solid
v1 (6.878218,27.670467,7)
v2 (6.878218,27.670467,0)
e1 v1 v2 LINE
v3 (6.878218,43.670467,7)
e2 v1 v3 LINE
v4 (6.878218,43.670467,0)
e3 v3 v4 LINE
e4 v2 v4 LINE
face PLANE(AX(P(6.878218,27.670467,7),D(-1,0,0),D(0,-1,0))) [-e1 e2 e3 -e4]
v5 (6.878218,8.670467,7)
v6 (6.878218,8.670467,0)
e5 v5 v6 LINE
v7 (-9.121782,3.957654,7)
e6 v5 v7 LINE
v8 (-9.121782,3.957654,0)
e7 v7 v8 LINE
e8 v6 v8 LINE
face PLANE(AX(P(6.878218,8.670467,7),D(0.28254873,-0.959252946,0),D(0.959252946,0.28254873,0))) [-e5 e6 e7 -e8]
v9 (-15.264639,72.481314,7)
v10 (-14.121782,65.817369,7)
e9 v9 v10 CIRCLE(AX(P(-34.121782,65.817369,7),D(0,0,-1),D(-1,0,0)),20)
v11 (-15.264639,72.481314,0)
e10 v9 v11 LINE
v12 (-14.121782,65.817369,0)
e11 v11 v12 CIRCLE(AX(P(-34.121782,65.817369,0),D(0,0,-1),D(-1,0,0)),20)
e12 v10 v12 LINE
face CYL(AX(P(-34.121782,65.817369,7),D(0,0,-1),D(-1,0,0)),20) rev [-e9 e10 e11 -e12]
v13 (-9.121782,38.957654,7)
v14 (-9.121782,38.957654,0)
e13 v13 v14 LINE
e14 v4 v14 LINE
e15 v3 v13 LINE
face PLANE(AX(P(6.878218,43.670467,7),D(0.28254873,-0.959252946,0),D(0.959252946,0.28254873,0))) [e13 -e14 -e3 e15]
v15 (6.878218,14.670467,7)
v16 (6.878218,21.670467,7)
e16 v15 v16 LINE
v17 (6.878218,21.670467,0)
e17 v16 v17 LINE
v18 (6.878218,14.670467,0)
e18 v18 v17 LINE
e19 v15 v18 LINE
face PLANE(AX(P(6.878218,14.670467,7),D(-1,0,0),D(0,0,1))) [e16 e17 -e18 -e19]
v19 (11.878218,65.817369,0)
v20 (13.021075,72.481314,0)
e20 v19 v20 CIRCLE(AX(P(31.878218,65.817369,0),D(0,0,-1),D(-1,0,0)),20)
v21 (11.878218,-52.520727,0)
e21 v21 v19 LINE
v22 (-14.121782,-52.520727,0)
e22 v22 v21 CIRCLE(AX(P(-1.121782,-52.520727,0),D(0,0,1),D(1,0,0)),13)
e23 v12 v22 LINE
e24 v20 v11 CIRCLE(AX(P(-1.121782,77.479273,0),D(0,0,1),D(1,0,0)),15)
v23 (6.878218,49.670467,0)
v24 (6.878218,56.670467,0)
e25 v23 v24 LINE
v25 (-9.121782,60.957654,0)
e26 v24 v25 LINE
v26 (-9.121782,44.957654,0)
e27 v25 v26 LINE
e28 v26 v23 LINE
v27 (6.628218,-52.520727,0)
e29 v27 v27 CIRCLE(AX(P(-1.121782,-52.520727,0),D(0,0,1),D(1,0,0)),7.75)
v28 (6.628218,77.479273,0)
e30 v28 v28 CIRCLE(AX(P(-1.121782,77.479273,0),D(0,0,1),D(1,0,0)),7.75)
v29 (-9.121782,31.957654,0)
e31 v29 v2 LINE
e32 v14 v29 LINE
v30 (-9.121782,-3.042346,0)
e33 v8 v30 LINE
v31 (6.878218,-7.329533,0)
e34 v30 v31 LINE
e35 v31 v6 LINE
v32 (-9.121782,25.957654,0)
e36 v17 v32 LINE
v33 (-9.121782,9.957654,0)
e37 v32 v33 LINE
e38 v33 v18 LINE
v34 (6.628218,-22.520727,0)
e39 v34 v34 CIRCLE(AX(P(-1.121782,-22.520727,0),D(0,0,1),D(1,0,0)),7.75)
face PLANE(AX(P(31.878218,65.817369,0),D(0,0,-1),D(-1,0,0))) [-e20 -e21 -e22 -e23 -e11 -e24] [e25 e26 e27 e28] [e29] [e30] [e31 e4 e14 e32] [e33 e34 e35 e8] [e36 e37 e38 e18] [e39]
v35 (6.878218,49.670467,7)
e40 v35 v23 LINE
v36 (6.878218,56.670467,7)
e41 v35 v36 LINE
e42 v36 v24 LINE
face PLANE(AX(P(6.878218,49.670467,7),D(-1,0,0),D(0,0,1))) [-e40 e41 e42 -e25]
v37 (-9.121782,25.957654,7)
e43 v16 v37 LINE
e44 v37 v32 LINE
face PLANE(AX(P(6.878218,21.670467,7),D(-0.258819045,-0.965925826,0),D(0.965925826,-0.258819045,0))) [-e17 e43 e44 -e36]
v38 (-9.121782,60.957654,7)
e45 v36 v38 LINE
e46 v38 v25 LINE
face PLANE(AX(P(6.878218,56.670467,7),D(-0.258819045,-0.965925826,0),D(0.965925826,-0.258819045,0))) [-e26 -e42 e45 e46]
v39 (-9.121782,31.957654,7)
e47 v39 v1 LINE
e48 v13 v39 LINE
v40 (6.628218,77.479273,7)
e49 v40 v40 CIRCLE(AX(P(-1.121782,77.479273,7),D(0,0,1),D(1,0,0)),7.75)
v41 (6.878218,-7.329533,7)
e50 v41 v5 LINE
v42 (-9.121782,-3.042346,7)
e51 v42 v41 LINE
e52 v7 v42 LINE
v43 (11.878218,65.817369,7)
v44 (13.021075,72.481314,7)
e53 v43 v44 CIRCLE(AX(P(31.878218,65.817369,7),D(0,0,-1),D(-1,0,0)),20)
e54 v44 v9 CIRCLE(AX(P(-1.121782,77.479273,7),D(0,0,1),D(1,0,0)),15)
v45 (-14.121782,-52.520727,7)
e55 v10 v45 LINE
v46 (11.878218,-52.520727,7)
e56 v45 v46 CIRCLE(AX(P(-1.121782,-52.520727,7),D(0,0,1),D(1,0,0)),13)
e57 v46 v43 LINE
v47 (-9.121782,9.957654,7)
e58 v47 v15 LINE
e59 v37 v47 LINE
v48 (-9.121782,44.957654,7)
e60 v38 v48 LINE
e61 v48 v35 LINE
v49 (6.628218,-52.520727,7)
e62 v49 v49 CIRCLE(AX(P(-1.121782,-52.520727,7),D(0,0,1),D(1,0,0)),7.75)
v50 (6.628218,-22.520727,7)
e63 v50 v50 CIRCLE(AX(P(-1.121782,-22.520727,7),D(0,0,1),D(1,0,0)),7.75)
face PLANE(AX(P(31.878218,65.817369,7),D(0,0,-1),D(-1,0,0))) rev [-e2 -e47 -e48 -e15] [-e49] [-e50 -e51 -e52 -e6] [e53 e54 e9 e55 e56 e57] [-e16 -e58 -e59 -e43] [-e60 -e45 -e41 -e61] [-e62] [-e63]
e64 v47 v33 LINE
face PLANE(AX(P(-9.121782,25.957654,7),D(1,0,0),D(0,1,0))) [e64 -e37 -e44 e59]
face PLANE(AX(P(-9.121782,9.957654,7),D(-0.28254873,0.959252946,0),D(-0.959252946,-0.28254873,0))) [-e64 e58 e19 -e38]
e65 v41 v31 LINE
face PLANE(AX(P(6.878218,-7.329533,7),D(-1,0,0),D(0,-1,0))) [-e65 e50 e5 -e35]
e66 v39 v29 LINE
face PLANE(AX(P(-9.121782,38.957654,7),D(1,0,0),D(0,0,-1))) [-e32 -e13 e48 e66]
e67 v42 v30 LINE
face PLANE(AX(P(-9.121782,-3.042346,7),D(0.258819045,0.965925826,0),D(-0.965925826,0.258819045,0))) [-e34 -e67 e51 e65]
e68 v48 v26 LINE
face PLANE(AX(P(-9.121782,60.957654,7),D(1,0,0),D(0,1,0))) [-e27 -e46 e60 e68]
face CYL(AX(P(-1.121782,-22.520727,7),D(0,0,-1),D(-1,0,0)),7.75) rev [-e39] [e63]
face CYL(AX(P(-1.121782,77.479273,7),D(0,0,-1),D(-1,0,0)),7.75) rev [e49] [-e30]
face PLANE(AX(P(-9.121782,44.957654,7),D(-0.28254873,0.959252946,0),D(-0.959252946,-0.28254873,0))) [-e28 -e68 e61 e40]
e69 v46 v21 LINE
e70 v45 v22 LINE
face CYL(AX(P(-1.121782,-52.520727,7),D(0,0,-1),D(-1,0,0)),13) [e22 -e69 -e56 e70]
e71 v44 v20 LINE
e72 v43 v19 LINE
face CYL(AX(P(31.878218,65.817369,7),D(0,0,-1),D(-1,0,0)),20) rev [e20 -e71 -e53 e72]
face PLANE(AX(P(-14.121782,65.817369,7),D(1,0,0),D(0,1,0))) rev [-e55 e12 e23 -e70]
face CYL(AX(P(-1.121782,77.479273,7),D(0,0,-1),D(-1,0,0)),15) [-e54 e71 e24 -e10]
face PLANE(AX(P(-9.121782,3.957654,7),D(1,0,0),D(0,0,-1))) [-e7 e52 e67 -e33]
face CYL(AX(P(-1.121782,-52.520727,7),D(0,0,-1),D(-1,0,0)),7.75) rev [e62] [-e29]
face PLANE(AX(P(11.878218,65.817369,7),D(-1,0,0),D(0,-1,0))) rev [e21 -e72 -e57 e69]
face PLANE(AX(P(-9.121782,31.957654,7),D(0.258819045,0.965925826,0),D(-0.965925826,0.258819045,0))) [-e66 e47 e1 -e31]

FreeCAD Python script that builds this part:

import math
import FreeCAD as App
import Part
import Sketcher
Q = App.Units.Quantity


def add_polygon(sketch, points):
    """Adds a closed chain of lines whose ends are joined by coincident constraints."""
    first, n = sketch.GeometryCount, len(points)
    for a, b in zip(points, points[1:] + points[:1]):
        sketch.addGeometry(Part.LineSegment(App.Vector(*a, 0), App.Vector(*b, 0)), False)
    for i in range(n):
        sketch.addConstraint(Sketcher.Constraint("Coincident", first + i, 2, first + (i + 1) % n, 1))

doc = App.newDocument("Part")
body = doc.addObject("PartDesign::Body", "Body")

# Sketch on XY plane
sketch1 = body.newObject("Sketcher::SketchObject", "Sketch")
sketch1.AttachmentSupport = (doc.getObject("XY_Plane"), [""])
sketch1.MapMode = "FlatFace"
sketch1.addGeometry(Part.LineSegment(App.Vector(-14, 66, 0), App.Vector(-14, -53, 0)), False)  # 0
sketch1.addGeometry(Part.ArcOfCircle(Part.Circle(App.Vector(-1, -53, 0), App.Vector(0, 0, 1), 13), math.radians(180), math.radians(360)), False)  # 1
sketch1.addGeometry(Part.LineSegment(App.Vector(12, -53, 0), App.Vector(12, 66, 0)), False)  # 2
sketch1.addGeometry(Part.ArcOfCircle(Part.Circle(App.Vector(32, 66, 0), App.Vector(0, 0, 1), 20), math.radians(160.54), math.radians(180)), False)  # 3
sketch1.addGeometry(Part.ArcOfCircle(Part.Circle(App.Vector(-1, 77, 0), App.Vector(0, 0, 1), 15), math.radians(-19), math.radians(199)), False)  # 4
sketch1.addGeometry(Part.ArcOfCircle(Part.Circle(App.Vector(-34, 66, 0), App.Vector(0, 0, 1), 20), math.radians(0), math.radians(19.46)), False)  # 5
sketch1.addGeometry(Part.Circle(App.Vector(-1, -53, 0), App.Vector(0, 0, 1), 8), False)  # 6
sketch1.addGeometry(Part.Circle(App.Vector(-1, -23, 0), App.Vector(0, 0, 1), 8), False)  # 7
add_polygon(sketch1, [(-9, -3), (-9, 4), (7, 9), (7, -7)])  # lines 8-11
add_polygon(sketch1, [(7, 15), (-9, 10), (-9, 26), (7, 22)])  # lines 12-15
add_polygon(sketch1, [(7, 28), (-9, 32), (-9, 39), (7, 44)])  # lines 16-19
add_polygon(sketch1, [(-9, 61), (7, 57), (7, 50), (-9, 45)])  # lines 20-23
sketch1.addGeometry(Part.Circle(App.Vector(-1, 77, 0), App.Vector(0, 0, 1), 8), False)  # 24
sketch1.addConstraint(Sketcher.Constraint("Tangent", 0, 2, 1, 1))
sketch1.addConstraint(Sketcher.Constraint("Tangent", 1, 2, 2, 1))
sketch1.addConstraint(Sketcher.Constraint("Tangent", 2, 2, 3, 2))
sketch1.addConstraint(Sketcher.Constraint("Tangent", 3, 1, 4, 1))
sketch1.addConstraint(Sketcher.Constraint("Tangent", 4, 2, 5, 2))
sketch1.addConstraint(Sketcher.Constraint("Tangent", 5, 1, 0, 1))
sketch1.addConstraint(Sketcher.Constraint("Vertical", 0))
sketch1.addConstraint(Sketcher.Constraint("Vertical", 2))
sketch1.addConstraint(Sketcher.Constraint("Vertical", 8))
sketch1.addConstraint(Sketcher.Constraint("Vertical", 10))
sketch1.addConstraint(Sketcher.Constraint("Vertical", 13))
sketch1.addConstraint(Sketcher.Constraint("Vertical", 15))
sketch1.addConstraint(Sketcher.Constraint("Vertical", 17))
sketch1.addConstraint(Sketcher.Constraint("Vertical", 19))
sketch1.addConstraint(Sketcher.Constraint("Vertical", 21))
sketch1.addConstraint(Sketcher.Constraint("Vertical", 23))
sketch1.addConstraint(Sketcher.Constraint("Coincident", 6, 3, 1, 3))
sketch1.addConstraint(Sketcher.Constraint("Coincident", 24, 3, 4, 3))
sketch1.addConstraint(Sketcher.Constraint("Equal", 3, 5))
sketch1.addConstraint(Sketcher.Constraint("Equal", 6, 7))
sketch1.addConstraint(Sketcher.Constraint("Equal", 7, 24))
sketch1.addConstraint(Sketcher.Constraint("Parallel", 9, 12))
sketch1.addConstraint(Sketcher.Constraint("Parallel", 11, 14))
sketch1.addConstraint(Sketcher.Constraint("Parallel", 14, 16))
sketch1.addConstraint(Sketcher.Constraint("Parallel", 12, 18))
sketch1.addConstraint(Sketcher.Constraint("Parallel", 16, 20))
sketch1.addConstraint(Sketcher.Constraint("Parallel", 18, 22))
sketch1.addConstraint(Sketcher.Constraint("Horizontal", 3, 3, 5, 3))
sketch1.addConstraint(Sketcher.Constraint("Vertical", 6, 3, 7, 3))
sketch1.addConstraint(Sketcher.Constraint("Vertical", 11, 2, 12, 2))
sketch1.addConstraint(Sketcher.Constraint("Vertical", 10, 2, 14, 2))
sketch1.addConstraint(Sketcher.Constraint("Vertical", 13, 2, 16, 2))
sketch1.addConstraint(Sketcher.Constraint("Vertical", 15, 2, 18, 2))
sketch1.addConstraint(Sketcher.Constraint("Vertical", 19, 2, 20, 2))
sketch1.addConstraint(Sketcher.Constraint("Vertical", 17, 2, 22, 2))
sketch1.addConstraint(Sketcher.Constraint("Equal", 10, 13))
sketch1.addConstraint(Sketcher.Constraint("Equal", 15, 17))
sketch1.addConstraint(Sketcher.Constraint("Equal", 17, 21))
sketch1.addConstraint(Sketcher.Constraint("Radius", 1, Q("13 mm")))
sketch1.addConstraint(Sketcher.Constraint("Radius", 3, Q("20 mm")))
sketch1.addConstraint(Sketcher.Constraint("Radius", 4, Q("15 mm")))
sketch1.addConstraint(Sketcher.Constraint("Diameter", 6, Q("15.5 mm")))
sketch1.addConstraint(Sketcher.Constraint("DistanceY", 8, 1, 8, 2, Q("7 mm")))
sketch1.addConstraint(Sketcher.Constraint("DistanceY", 10, 2, 10, 1, Q("16 mm")))
sketch1.addConstraint(Sketcher.Constraint("Angle", 11, Q("165 deg")))
sketch1.addConstraint(Sketcher.Constraint("DistanceY", 1, 3, 4, 3, Q("130 mm")))
sketch1.addConstraint(Sketcher.Constraint("DistanceY", 1, 3, 7, 3, Q("30 mm")))
sketch1.addConstraint(Sketcher.Constraint("DistanceX", 8, 2, 7, 3, Q("8 mm")))
sketch1.addConstraint(Sketcher.Constraint("DistanceX", 8, 2, 9, 2, Q("16 mm")))
sketch1.addConstraint(Sketcher.Constraint("DistanceY", 8, 2, 12, 2, Q("6 mm")))
sketch1.addConstraint(Sketcher.Constraint("DistanceY", 13, 2, 16, 2, Q("6 mm")))
sketch1.addConstraint(Sketcher.Constraint("DistanceY", 18, 2, 20, 2, Q("13 mm")))
sketch1.addConstraint(Sketcher.Constraint("DistanceX", 1, 3, -1, 1, Q("1.121782 mm")))
sketch1.addConstraint(Sketcher.Constraint("DistanceY", -1, 1, 3, 3, Q("65.817369 mm")))
sketch1.addConstraint(Sketcher.Constraint("DistanceY", 7, 3, 8, 2, Q("26.478381 mm")))
pad1 = body.newObject("PartDesign::Pad", "Pad")
pad1.Profile = sketch1
pad1.Length = 7

doc.recompute()
